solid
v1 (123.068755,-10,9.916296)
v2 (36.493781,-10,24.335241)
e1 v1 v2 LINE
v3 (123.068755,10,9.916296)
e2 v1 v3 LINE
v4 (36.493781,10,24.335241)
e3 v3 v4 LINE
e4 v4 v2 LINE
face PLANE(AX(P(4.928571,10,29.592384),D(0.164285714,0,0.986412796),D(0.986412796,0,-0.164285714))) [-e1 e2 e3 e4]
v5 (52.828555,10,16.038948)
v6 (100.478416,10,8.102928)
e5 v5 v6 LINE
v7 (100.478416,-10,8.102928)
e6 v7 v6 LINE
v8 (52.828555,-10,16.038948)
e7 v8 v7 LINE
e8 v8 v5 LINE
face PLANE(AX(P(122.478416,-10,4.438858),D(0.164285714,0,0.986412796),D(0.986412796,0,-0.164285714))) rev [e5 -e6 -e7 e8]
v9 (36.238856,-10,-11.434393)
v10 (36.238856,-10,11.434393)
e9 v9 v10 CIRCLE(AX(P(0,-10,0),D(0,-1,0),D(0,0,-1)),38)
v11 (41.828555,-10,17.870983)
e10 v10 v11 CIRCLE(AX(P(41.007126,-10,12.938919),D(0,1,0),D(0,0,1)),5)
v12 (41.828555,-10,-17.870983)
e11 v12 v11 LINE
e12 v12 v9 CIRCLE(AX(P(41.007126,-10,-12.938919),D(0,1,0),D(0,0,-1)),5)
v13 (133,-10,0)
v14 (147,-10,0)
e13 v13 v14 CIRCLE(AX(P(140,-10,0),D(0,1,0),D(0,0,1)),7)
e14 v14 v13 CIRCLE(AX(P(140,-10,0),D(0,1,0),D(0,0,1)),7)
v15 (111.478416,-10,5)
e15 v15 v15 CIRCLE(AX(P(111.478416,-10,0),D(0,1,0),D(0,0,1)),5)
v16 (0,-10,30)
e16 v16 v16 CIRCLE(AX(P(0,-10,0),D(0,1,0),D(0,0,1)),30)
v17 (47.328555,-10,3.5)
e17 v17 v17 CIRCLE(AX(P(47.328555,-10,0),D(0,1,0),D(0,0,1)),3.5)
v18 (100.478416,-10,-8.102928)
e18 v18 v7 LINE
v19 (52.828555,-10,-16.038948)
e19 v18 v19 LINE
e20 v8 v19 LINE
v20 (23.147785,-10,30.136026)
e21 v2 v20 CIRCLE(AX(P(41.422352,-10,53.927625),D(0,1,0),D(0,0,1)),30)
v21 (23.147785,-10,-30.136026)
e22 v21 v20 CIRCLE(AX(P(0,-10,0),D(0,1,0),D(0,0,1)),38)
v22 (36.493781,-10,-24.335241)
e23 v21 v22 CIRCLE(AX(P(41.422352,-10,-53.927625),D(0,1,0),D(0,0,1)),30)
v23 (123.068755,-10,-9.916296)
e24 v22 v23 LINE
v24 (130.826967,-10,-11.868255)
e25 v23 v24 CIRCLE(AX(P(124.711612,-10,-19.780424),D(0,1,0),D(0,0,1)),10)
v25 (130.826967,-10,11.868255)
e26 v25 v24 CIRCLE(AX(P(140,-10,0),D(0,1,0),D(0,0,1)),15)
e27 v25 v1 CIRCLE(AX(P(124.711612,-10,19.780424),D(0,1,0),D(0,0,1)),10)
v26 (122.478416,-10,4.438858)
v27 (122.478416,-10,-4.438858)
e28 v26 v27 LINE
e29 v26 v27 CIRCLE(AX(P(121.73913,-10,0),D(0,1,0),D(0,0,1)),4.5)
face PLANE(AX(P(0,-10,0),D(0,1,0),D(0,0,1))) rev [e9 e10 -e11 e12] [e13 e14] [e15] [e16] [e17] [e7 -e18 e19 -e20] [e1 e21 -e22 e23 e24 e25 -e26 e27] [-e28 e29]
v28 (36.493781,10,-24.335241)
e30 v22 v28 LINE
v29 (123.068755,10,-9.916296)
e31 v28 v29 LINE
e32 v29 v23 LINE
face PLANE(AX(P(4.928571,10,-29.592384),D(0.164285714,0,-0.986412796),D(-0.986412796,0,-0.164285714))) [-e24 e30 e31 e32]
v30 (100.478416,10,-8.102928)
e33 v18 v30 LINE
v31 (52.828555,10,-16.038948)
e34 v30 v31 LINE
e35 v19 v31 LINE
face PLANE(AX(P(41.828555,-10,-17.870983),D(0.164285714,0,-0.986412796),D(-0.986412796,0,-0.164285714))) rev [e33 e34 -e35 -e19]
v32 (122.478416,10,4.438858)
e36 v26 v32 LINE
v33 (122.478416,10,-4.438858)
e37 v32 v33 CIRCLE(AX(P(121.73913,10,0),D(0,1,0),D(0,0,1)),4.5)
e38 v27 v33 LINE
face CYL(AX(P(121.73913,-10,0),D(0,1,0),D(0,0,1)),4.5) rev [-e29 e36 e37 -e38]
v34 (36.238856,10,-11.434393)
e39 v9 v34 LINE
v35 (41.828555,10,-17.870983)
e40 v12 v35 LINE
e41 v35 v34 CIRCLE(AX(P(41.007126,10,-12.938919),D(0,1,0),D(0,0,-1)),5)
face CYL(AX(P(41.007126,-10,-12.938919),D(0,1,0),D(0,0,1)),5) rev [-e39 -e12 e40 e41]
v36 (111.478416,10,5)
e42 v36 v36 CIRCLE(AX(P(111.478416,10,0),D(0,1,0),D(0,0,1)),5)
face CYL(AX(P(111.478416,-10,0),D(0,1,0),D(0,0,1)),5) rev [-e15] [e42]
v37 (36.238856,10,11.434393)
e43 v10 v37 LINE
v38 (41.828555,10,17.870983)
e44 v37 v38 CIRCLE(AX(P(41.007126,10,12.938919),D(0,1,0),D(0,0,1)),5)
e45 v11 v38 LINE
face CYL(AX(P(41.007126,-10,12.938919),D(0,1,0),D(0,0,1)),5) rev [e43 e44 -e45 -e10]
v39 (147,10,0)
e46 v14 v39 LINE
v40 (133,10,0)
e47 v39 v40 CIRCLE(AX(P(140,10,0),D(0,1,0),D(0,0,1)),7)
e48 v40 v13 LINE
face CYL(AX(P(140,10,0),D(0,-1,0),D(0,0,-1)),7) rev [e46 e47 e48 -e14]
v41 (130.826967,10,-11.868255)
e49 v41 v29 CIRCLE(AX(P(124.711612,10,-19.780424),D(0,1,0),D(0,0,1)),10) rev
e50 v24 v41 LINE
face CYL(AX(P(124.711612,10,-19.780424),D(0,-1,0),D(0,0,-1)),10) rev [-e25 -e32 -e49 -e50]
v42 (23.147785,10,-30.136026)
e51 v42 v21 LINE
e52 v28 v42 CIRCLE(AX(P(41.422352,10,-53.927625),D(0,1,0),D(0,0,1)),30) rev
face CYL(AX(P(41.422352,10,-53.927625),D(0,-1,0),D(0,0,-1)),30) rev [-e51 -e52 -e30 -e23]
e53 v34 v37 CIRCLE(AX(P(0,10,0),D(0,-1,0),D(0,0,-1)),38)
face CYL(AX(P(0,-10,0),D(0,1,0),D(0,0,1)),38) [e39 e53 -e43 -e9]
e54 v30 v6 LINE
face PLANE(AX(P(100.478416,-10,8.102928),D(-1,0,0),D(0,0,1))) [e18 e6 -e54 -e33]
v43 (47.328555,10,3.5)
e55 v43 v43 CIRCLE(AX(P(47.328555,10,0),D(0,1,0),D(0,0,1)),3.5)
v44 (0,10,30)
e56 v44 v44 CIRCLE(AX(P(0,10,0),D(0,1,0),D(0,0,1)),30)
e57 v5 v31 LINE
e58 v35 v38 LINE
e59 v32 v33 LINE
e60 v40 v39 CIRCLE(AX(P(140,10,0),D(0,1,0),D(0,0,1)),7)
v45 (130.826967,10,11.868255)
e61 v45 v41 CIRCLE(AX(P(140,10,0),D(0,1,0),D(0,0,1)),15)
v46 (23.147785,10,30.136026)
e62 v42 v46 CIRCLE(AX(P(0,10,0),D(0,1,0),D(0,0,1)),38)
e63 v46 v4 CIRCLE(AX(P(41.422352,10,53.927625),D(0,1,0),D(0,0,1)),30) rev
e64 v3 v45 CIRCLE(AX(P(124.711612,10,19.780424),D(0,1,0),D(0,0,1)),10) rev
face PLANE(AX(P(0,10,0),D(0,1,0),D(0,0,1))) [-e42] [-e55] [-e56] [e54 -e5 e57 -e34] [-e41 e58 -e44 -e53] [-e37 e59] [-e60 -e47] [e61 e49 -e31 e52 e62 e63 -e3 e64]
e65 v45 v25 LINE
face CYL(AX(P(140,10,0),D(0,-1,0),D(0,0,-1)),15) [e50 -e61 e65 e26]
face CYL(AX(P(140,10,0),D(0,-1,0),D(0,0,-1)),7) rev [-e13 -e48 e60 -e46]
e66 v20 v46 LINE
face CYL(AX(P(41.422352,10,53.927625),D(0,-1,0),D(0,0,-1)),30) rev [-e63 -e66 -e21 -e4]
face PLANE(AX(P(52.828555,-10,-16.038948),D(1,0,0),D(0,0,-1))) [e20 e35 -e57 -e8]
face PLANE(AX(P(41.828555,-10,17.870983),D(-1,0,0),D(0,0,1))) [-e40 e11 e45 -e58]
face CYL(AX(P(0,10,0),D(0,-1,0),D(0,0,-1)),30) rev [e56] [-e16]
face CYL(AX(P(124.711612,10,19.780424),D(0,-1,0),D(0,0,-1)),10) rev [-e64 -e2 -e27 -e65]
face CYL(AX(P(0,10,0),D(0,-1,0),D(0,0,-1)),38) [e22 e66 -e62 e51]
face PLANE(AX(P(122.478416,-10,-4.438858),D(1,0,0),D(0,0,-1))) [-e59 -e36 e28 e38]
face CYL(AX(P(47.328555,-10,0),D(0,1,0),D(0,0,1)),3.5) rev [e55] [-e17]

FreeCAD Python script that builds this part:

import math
import FreeCAD as App
import Part
import Sketcher
Q = App.Units.Quantity


def edges_at(feature, points):
    """Names of the edges that pass closest to the given points."""
    edges = feature.Shape.Edges
    near = lambda p: min(range(len(edges)), key=lambda i: edges[i].distToShape(Part.Vertex(*p))[0])
    return sorted({f"Edge{near(p) + 1}" for p in points})

doc = App.newDocument("Part")
body = doc.addObject("PartDesign::Body", "Body")

sketch1 = body.newObject("Sketcher::SketchObject", "Sketch")
sketch1.AttachmentSupport = (doc.getObject("XZ_Plane"), [""])
sketch1.MapMode = "FlatFace"
sketch1.addGeometry([
    Part.LineSegment(App.Vector(128, -9, 0), App.Vector(28, -26, 0)),
    Part.ArcOfCircle(Part.Circle(App.Vector(0, 0, 0), App.Vector(0, 0, 1), 38), math.radians(43), math.radians(317)),
    Part.LineSegment(App.Vector(28, 26, 0), App.Vector(128, 9, 0)),
    Part.ArcOfCircle(Part.Circle(App.Vector(140, 0, 0), App.Vector(0, 0, 1), 15), math.radians(-143), math.radians(143)),
    Part.Circle(App.Vector(140, 0, 0), App.Vector(0, 0, 1), 7),
    Part.Circle(App.Vector(0, 0, 0), App.Vector(0, 0, 1), 30),
], False)
sketch1.addConstraint([
    Sketcher.Constraint("Coincident", 0, 2, 1, 2),
    Sketcher.Constraint("Coincident", 1, 1, 2, 1),
    Sketcher.Constraint("Coincident", 2, 2, 3, 2),
    Sketcher.Constraint("Coincident", 3, 1, 0, 1),
    Sketcher.Constraint("Coincident", 1, 3, -1, 1),
    Sketcher.Constraint("Coincident", 5, 3, -1, 1),
    Sketcher.Constraint("Coincident", 4, 3, 3, 3),
    Sketcher.Constraint("Symmetric", 2, 2, 3, 1, -1),
    Sketcher.Constraint("Vertical", 0, 2, 1, 1),
    Sketcher.Constraint("Diameter", 4, Q("14 mm")),
    Sketcher.Constraint("Diameter", 5, Q("60 mm")),
    Sketcher.Constraint("Radius", 1, Q("38 mm")),
    Sketcher.Constraint("Radius", 3, Q("15 mm")),
    Sketcher.Constraint("DistanceX", -1, 1, 3, 3, Q("140 mm")),
    Sketcher.Constraint("DistanceY", 0, 2, 2, 2, Q("34.845001 mm")),
    Sketcher.Constraint("DistanceY", 0, 2, 1, 1, Q("51.521231 mm")),
])
pad1 = body.newObject("PartDesign::Pad", "Pad")
pad1.Profile = sketch1
pad1.Length = 20
pad1.Midplane = True
doc.recompute()

fillet = body.newObject("PartDesign::Fillet", "Fillet")
fillet.Base = (pad1, edges_at(pad1, [(27.935, 0, 25.761), (27.935, 0, -25.761)]))
fillet.Radius = 30
doc.recompute()

fillet2 = body.newObject("PartDesign::Fillet", "Fillet001")
fillet2.Base = (fillet, edges_at(fillet, [(128.064, 0, 9.084), (128.064, 0, -9.084)]))
fillet2.Radius = 10

sketch2 = body.newObject("Sketcher::SketchObject", "Sketch001")
sketch2.AttachmentSupport = (doc.getObject("XZ_Plane"), [""])
sketch2.MapMode = "FlatFace"
sketch2.AttachmentOffset = App.Placement(App.Vector(0, 0, -10), App.Rotation())
sketch2.addGeometry([
    Part.LineSegment(App.Vector(122.5, -4.4, 0), App.Vector(41.8, -17.9, 0)),
    Part.ArcOfCircle(Part.Circle(App.Vector(41, -12.9, 0), App.Vector(0, 0, 1), 5), math.radians(162), math.radians(279)),
    Part.ArcOfCircle(Part.Circle(App.Vector(0, 0, 0), App.Vector(0, 0, 1), 38), math.radians(-18), math.radians(18)),
    Part.ArcOfCircle(Part.Circle(App.Vector(41, 12.9, 0), App.Vector(0, 0, 1), 5), math.radians(81), math.radians(198)),
    Part.LineSegment(App.Vector(41.8, 17.9, 0), App.Vector(122.5, 4.4, 0)),
    Part.ArcOfCircle(Part.Circle(App.Vector(121.7, 0, 0), App.Vector(0, 0, 1), 4.5), math.radians(-81), math.radians(81)),
], False)
sketch2.addConstraint([
    Sketcher.Constraint("Tangent", 0, 2, 1, 2),
    Sketcher.Constraint("Tangent", 1, 1, 2, 1),
    Sketcher.Constraint("Tangent", 2, 2, 3, 2),
    Sketcher.Constraint("Tangent", 3, 1, 4, 1),
    Sketcher.Constraint("Tangent", 4, 2, 5, 2),
    Sketcher.Constraint("Tangent", 5, 1, 0, 1),
    Sketcher.Constraint("Coincident", 2, 3, -1, 1),
    Sketcher.Constraint("Equal", 1, 3),
    Sketcher.Constraint("Symmetric", 0, 2, 3, 1, -1),
    Sketcher.Constraint("Radius", 1, Q("5 mm")),
    Sketcher.Constraint("Radius", 2, Q("38 mm")),
    Sketcher.Constraint("Radius", 5, Q("4.5 mm")),
    Sketcher.Constraint("DistanceY", 0, 2, 3, 3, Q("30.809901 mm")),
    Sketcher.Constraint("DistanceX", 1, 1, 0, 2, Q("5.589699 mm")),
])
pocket1 = body.newObject("PartDesign::Pocket", "Pocket")
pocket1.Profile = sketch2
pocket1.Type = "ThroughAll"
pocket1.Reversed = True

sketch3 = body.newObject("Sketcher::SketchObject", "Sketch002")
sketch3.AttachmentSupport = (doc.getObject("XZ_Plane"), [""])
sketch3.MapMode = "FlatFace"
sketch3.AttachmentOffset = App.Placement(App.Vector(0, 0, -10), App.Rotation())
sketch3.addGeometry([
    Part.LineSegment(App.Vector(122, -4, 0), App.Vector(100, -8, 0)),
    Part.LineSegment(App.Vector(100, -8, 0), App.Vector(100, 8, 0)),
    Part.LineSegment(App.Vector(100, 8, 0), App.Vector(122, 4, 0)),
    Part.LineSegment(App.Vector(122, 4, 0), App.Vector(122, -4, 0)),
    Part.LineSegment(App.Vector(53, -16, 0), App.Vector(42, -18, 0)),
    Part.LineSegment(App.Vector(42, -18, 0), App.Vector(42, 18, 0)),
    Part.LineSegment(App.Vector(42, 18, 0), App.Vector(53, 16, 0)),
    Part.LineSegment(App.Vector(53, 16, 0), App.Vector(53, -16, 0)),
], False)
sketch3.addConstraint([
    Sketcher.Constraint("Coincident", 0, 2, 1, 1),
    Sketcher.Constraint("Coincident", 1, 2, 2, 1),
    Sketcher.Constraint("Coincident", 2, 2, 3, 1),
    Sketcher.Constraint("Coincident", 3, 2, 0, 1),
    Sketcher.Constraint("Coincident", 4, 2, 5, 1),
    Sketcher.Constraint("Coincident", 5, 2, 6, 1),
    Sketcher.Constraint("Coincident", 6, 2, 7, 1),
    Sketcher.Constraint("Coincident", 7, 2, 4, 1),
    Sketcher.Constraint("Vertical", 1),
    Sketcher.Constraint("Vertical", 3),
    Sketcher.Constraint("Vertical", 5),
    Sketcher.Constraint("Vertical", 7),
    Sketcher.Constraint("Parallel", 0, 4),
    Sketcher.Constraint("Parallel", 2, 6),
    Sketcher.Constraint("Equal", 0, 2),
    Sketcher.Constraint("DistanceX", 1, 2, 2, 2, Q("22 mm")),
    Sketcher.Constraint("DistanceX", 5, 2, 6, 2, Q("11 mm")),
    Sketcher.Constraint("DistanceY", 1, 1, 1, 2, Q("16.205856 mm")),
    Sketcher.Constraint("DistanceY", 3, 2, 3, 1, Q("8.877715 mm")),
    Sketcher.Constraint("DistanceY", 5, 1, 5, 2, Q("35.741965 mm")),
    Sketcher.Constraint("DistanceX", 4, 2, 0, 2, Q("58.649862 mm")),
    Sketcher.Constraint("DistanceY", 4, 2, 1, 2, Q("25.97391 mm")),
    Sketcher.Constraint("DistanceX", -1, 1, 0, 2, Q("100.478416 mm")),
    Sketcher.Constraint("DistanceY", 0, 2, -1, 1, Q("8.102928 mm")),
])
pad2 = body.newObject("PartDesign::Pad", "Pad001")
pad2.Profile = sketch3
pad2.Length = 20

sketch4 = body.newObject("Sketcher::SketchObject", "Sketch003")
sketch4.AttachmentSupport = (doc.getObject("XZ_Plane"), [""])
sketch4.MapMode = "FlatFace"
sketch4.AttachmentOffset = App.Placement(App.Vector(0, 0, -10), App.Rotation())
sketch4.addGeometry([
    Part.Circle(App.Vector(47.3, 0, 0), App.Vector(0, 0, 1), 3.5),
    Part.Circle(App.Vector(111.5, 0, 0), App.Vector(0, 0, 1), 5),
], False)
sketch4.addConstraint([
    Sketcher.Constraint("PointOnObject", 0, 3, -1),
    Sketcher.Constraint("PointOnObject", 1, 3, -1),
    Sketcher.Constraint("Diameter", 0, Q("7 mm")),
    Sketcher.Constraint("Diameter", 1, Q("10 mm")),
    Sketcher.Constraint("DistanceX", 0, 3, 1, 3, Q("64.149862 mm")),
    Sketcher.Constraint("DistanceX", -1, 1, 0, 3, Q("47.328555 mm")),
])
pocket2 = body.newObject("PartDesign::Pocket", "Pocket001")
pocket2.Profile = sketch4
pocket2.Type = "ThroughAll"
pocket2.Reversed = True

doc.recompute()
